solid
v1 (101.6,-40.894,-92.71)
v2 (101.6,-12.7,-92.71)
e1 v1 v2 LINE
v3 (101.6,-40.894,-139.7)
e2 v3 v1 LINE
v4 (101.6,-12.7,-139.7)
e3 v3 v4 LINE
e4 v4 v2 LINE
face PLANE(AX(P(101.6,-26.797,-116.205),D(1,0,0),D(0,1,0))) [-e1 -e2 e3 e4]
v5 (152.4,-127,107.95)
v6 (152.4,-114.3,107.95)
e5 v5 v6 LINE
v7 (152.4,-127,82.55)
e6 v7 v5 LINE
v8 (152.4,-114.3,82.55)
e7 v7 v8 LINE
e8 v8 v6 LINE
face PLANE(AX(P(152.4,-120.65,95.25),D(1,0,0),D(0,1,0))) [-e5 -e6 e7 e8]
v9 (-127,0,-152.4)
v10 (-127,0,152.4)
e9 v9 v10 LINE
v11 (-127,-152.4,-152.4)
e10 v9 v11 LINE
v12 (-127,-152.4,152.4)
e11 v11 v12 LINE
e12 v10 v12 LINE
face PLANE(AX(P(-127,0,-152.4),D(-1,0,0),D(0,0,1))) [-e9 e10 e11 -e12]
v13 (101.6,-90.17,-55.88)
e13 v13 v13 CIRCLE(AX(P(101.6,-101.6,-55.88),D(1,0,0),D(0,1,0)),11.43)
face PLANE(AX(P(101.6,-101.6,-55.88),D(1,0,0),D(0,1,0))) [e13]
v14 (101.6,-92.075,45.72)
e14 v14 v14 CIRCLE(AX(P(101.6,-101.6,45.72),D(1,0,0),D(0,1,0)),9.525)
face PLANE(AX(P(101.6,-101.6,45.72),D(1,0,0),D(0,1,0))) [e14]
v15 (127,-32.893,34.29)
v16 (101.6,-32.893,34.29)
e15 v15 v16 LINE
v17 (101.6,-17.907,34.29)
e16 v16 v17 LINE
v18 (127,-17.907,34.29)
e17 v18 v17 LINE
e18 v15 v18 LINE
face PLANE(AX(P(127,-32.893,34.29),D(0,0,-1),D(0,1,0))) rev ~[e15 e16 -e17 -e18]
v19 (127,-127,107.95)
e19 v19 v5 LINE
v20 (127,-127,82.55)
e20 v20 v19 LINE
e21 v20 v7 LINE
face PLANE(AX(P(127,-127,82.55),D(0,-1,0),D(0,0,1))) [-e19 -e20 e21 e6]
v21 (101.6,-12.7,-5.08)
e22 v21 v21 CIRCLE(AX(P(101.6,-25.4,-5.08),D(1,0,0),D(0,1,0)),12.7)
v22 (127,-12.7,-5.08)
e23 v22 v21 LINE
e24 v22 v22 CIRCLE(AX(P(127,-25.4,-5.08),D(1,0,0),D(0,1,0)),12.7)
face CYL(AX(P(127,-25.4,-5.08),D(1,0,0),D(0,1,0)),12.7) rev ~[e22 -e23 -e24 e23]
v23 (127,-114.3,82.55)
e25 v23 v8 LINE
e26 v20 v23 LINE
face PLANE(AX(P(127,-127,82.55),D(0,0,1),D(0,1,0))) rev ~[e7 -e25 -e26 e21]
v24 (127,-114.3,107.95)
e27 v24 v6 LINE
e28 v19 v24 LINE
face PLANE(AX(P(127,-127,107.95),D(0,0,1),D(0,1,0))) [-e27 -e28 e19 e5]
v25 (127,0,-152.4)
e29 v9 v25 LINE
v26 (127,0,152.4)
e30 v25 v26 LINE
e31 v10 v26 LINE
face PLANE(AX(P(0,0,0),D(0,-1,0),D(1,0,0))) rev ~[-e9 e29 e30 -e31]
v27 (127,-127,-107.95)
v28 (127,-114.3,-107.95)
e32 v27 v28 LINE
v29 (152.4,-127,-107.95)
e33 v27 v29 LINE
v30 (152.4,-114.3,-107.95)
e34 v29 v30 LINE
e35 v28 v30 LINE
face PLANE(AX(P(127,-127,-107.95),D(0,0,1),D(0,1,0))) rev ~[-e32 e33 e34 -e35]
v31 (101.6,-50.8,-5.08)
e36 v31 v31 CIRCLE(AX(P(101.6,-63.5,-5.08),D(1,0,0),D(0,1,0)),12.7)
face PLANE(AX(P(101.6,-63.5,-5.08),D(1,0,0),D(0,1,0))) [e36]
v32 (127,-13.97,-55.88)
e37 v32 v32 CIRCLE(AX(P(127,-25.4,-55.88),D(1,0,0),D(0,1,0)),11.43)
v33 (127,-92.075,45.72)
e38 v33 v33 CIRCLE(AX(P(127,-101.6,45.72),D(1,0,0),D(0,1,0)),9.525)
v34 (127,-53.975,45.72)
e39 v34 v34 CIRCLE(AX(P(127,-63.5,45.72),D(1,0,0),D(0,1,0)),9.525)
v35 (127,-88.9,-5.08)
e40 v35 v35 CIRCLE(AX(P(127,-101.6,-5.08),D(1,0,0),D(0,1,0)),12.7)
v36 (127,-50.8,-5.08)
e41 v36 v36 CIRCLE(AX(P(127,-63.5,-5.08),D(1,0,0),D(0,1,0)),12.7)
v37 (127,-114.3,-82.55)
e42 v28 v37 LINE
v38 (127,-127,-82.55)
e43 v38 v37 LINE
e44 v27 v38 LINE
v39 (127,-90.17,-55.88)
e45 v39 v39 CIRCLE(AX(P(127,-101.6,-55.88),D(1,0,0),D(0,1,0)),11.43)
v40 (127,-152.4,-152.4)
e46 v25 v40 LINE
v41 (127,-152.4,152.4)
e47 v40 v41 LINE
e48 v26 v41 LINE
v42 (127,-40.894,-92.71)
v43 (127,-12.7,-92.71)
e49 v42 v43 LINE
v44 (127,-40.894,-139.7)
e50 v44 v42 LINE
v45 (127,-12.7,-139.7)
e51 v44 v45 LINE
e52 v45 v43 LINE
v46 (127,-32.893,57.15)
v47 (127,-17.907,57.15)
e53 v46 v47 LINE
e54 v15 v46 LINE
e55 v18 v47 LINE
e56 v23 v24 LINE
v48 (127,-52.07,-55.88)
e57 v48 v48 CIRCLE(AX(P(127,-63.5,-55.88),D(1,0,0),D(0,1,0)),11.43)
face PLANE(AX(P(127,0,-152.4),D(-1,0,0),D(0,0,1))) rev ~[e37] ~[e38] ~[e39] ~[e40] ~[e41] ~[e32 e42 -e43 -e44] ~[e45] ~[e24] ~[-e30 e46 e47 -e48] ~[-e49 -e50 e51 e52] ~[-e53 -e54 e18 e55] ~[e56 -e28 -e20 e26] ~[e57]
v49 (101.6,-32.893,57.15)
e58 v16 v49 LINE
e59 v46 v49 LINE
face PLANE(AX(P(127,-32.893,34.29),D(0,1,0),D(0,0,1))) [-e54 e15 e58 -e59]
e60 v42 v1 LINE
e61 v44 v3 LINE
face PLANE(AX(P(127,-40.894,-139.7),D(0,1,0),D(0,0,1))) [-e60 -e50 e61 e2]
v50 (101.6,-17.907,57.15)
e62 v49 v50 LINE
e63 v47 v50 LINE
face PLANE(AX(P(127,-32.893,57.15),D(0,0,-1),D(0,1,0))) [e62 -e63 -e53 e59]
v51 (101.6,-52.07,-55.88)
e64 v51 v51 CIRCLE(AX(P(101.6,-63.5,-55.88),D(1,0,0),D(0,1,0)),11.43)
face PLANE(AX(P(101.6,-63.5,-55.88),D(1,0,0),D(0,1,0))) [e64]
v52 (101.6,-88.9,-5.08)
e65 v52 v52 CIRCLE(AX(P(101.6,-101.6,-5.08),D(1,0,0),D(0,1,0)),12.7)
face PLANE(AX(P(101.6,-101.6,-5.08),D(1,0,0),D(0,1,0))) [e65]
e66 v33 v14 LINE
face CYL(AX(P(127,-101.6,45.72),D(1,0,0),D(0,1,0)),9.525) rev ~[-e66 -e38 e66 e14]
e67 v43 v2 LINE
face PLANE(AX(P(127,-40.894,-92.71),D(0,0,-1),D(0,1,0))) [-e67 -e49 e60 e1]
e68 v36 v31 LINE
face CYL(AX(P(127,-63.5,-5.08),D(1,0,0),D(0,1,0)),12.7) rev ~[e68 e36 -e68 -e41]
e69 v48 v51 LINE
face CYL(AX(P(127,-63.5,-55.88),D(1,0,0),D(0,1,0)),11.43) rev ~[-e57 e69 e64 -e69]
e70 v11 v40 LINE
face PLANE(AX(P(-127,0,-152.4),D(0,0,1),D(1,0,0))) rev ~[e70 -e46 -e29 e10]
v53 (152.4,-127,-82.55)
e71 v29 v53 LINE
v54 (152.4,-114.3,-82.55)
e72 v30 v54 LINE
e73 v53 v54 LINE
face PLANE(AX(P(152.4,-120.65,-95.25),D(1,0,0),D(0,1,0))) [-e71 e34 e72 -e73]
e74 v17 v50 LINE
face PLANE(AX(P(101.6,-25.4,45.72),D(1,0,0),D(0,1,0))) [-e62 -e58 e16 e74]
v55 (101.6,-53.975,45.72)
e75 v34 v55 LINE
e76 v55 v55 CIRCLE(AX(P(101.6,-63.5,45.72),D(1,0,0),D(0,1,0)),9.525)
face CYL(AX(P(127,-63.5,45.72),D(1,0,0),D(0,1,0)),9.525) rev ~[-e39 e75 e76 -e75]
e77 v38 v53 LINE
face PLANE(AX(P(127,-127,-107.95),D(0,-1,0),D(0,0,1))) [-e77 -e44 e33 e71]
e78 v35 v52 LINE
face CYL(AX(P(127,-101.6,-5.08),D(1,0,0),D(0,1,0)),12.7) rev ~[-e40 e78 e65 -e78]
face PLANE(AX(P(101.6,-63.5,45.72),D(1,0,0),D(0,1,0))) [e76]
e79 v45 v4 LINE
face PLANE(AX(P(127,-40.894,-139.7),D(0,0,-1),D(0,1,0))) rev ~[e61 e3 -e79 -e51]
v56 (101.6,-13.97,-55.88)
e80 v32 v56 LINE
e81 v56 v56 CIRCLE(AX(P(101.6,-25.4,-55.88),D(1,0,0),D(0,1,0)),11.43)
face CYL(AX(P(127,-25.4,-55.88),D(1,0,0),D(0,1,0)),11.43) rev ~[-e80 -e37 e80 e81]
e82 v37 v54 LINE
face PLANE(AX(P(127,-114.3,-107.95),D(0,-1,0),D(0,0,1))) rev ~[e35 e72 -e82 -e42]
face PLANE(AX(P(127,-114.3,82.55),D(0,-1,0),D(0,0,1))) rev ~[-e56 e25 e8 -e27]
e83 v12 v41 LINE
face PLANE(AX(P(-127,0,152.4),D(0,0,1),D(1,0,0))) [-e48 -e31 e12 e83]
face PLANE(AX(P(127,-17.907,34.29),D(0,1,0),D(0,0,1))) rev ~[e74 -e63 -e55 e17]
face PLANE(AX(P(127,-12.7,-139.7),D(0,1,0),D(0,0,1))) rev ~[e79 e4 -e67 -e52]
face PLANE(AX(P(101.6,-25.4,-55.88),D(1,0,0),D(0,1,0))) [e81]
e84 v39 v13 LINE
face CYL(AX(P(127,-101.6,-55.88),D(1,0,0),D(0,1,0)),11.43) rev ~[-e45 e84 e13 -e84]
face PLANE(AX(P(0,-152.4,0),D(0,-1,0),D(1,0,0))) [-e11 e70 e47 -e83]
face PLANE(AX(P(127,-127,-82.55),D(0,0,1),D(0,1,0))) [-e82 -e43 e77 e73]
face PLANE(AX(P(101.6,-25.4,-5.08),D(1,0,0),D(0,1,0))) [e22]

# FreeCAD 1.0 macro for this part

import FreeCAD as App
import Part
import Sketcher
from FreeCAD import Vector
Q = App.Units.Quantity


def add_polygon(sketch, points):
    """Adds a closed chain of lines whose ends are joined by coincident constraints."""
    first, n = sketch.GeometryCount, len(points)
    for a, b in zip(points, points[1:] + points[:1]):
        sketch.addGeometry(Part.LineSegment(App.Vector(*a, 0), App.Vector(*b, 0)), False)
    for i in range(n):
        sketch.addConstraint(Sketcher.Constraint("Coincident", first + i, 2, first + (i + 1) % n, 1))

doc = App.newDocument("Part")
params = doc.addObject("Spreadsheet::Sheet", "Params")
for row, (alias, value) in enumerate([
    ("sketch1_width", "10 in"),
    ("sketch1_height", "12 in"),
    ("pad1_length", "6 in"),
    ("sketch2_height", "1 in"),
    ("sketch2_width", "0.5 in"),
    ("pad2_length", "1 in"),
    ("sketch3_diameter", "1 in"),
    ("sketch3_diameter2", "0.9 in"),
    ("sketch3_diameter3", "0.75 in"),
    ("sketch3_height", "0.9 in"),
    ("sketch3_width", "1.11 in"),
    ("pocket1_length", "1 in"),
], start=1):
    params.set(f"A{row}", alias)
    params.set(f"B{row}", "=" + value)
    params.setAlias(f"B{row}", alias)

body = doc.addObject("PartDesign::Body", "Body")

# Sketch on XZ plane
sketch1 = body.newObject("Sketcher::SketchObject", "Sketch")
sketch1.AttachmentSupport = (doc.getObject("XZ_Plane"), [""])
sketch1.MapMode = "FlatFace"
add_polygon(sketch1, [(-127, 152), (-127, -152), (127, -152), (127, 152)])  # lines 0-3
sketch1.addConstraint([
    Sketcher.Constraint("Vertical", 0),
    Sketcher.Constraint("Horizontal", 1),
    Sketcher.Constraint("Vertical", 2),
    Sketcher.Constraint("Horizontal", 3),
    Sketcher.Constraint("Symmetric", 0, 2, 2, 2, -1, 1),
    Sketcher.Constraint("DistanceX", 1, 1, 1, 2, Q("10 in")),
    Sketcher.Constraint("DistanceY", 0, 2, 0, 1, Q("12 in")),
])
sketch1.setExpression("Constraints[9]", "Params.sketch1_width")
sketch1.setExpression("Constraints[10]", "Params.sketch1_height")
pad1 = body.newObject("PartDesign::Pad", "Pad")
pad1.Profile = sketch1
pad1.setExpression("Length", "Params.pad1_length")

# Sketch on YZ plane
sketch2 = body.newObject("Sketcher::SketchObject", "Sketch001")
sketch2.AttachmentSupport = (doc.getObject("YZ_Plane"), [""])
sketch2.MapMode = "FlatFace"
sketch2.AttachmentOffset = App.Placement(Vector(0, 0, 5 * 25.4), App.Rotation())
add_polygon(sketch2, [(-127, 108), (-127, 83), (-114, 83), (-114, 108)])  # lines 0-3
add_polygon(sketch2, [(-127, -83), (-127, -108), (-114, -108), (-114, -83)])  # lines 4-7
sketch2.addConstraint([
    Sketcher.Constraint("Vertical", 0),
    Sketcher.Constraint("Horizontal", 1),
    Sketcher.Constraint("Vertical", 2),
    Sketcher.Constraint("Horizontal", 3),
    Sketcher.Constraint("Vertical", 4),
    Sketcher.Constraint("Horizontal", 5),
    Sketcher.Constraint("Vertical", 6),
    Sketcher.Constraint("Horizontal", 7),
    Sketcher.Constraint("Symmetric", 3, 2, 4, 2, -1),
    Sketcher.Constraint("Symmetric", 1, 2, 6, 2, -1),
    Sketcher.Constraint("DistanceY", 0, 2, 0, 1, Q("1 in")),
    Sketcher.Constraint("DistanceX", 1, 1, 1, 2, Q("0.5 in")),
    Sketcher.Constraint("DistanceX", 0, 2, -1, 1, Q("5 in")),
    Sketcher.Constraint("DistanceY", 4, 2, 0, 2, Q("7.5 in")),
])
sketch2.setExpression("Constraints[18]", "Params.sketch2_height")
sketch2.setExpression("Constraints[19]", "Params.sketch2_width")
pad2 = body.newObject("PartDesign::Pad", "Pad001")
pad2.Profile = sketch2
pad2.setExpression("Length", "Params.pad2_length")

# Sketch on YZ plane
sketch3 = body.newObject("Sketcher::SketchObject", "Sketch002")
sketch3.AttachmentSupport = (doc.getObject("YZ_Plane"), [""])
sketch3.MapMode = "FlatFace"
sketch3.AttachmentOffset = App.Placement(Vector(0, 0, 5 * 25.4), App.Rotation())
sketch3.addGeometry(Part.Circle(Vector(-102, -5, 0), Vector(0, 0, 1), 13), False)  # 0
sketch3.addGeometry(Part.Circle(Vector(-64, -5, 0), Vector(0, 0, 1), 13), False)  # 1
sketch3.addGeometry(Part.Circle(Vector(-25, -5, 0), Vector(0, 0, 1), 13), False)  # 2
sketch3.addGeometry(Part.Circle(Vector(-102, -56, 0), Vector(0, 0, 1), 11), False)  # 3
sketch3.addGeometry(Part.Circle(Vector(-64, -56, 0), Vector(0, 0, 1), 11), False)  # 4
sketch3.addGeometry(Part.Circle(Vector(-25, -56, 0), Vector(0, 0, 1), 11), False)  # 5
add_polygon(sketch3, [(-41, -93), (-41, -140), (-13, -140), (-13, -93)])  # lines 6-9
add_polygon(sketch3, [(-33, 57), (-33, 34), (-18, 34), (-18, 57)])  # lines 10-13
sketch3.addGeometry(Part.Circle(Vector(-102, 46, 0), Vector(0, 0, 1), 10), False)  # 14
sketch3.addGeometry(Part.Circle(Vector(-64, 46, 0), Vector(0, 0, 1), 10), False)  # 15
sketch3.addConstraint([
    Sketcher.Constraint("Vertical", 6),
    Sketcher.Constraint("Horizontal", 7),
    Sketcher.Constraint("Vertical", 8),
    Sketcher.Constraint("Horizontal", 9),
    Sketcher.Constraint("Vertical", 10),
    Sketcher.Constraint("Horizontal", 11),
    Sketcher.Constraint("Vertical", 12),
    Sketcher.Constraint("Horizontal", 13),
    Sketcher.Constraint("Equal", 0, 1),
    Sketcher.Constraint("Equal", 1, 2),
    Sketcher.Constraint("Equal", 3, 4),
    Sketcher.Constraint("Equal", 4, 5),
    Sketcher.Constraint("Equal", 14, 15),
    Sketcher.Constraint("Horizontal", 0, 3, 1, 3),
    Sketcher.Constraint("Horizontal", 1, 3, 2, 3),
    Sketcher.Constraint("Horizontal", 3, 3, 4, 3),
    Sketcher.Constraint("Horizontal", 4, 3, 5, 3),
    Sketcher.Constraint("Horizontal", 14, 3, 15, 3),
    Sketcher.Constraint("Vertical", 0, 3, 3, 3),
    Sketcher.Constraint("Vertical", 1, 3, 4, 3),
    Sketcher.Constraint("Vertical", 2, 3, 5, 3),
    Sketcher.Constraint("Vertical", 3, 3, 14, 3),
    Sketcher.Constraint("Vertical", 4, 3, 15, 3),
    Sketcher.Constraint("Diameter", 0, Q("1 in")),
    Sketcher.Constraint("Diameter", 3, Q("0.9 in")),
    Sketcher.Constraint("Diameter", 14, Q("0.75 in")),
    Sketcher.Constraint("DistanceY", 10, 2, 10, 1, Q("0.9 in")),
    Sketcher.Constraint("DistanceX", 0, 3, -1, 1, Q("4 in")),
    Sketcher.Constraint("DistanceX", 2, 3, -1, 1, Q("1 in")),
    Sketcher.Constraint("DistanceY", 3, 3, 0, 3, Q("2 in")),
    Sketcher.Constraint("DistanceY", 0, 3, 14, 3, Q("2 in")),
    Sketcher.Constraint("DistanceX", 4, 3, 7, 2, Q("2 in")),
    Sketcher.Constraint("DistanceX", 7, 1, 7, 2, Q("1.11 in")),
    Sketcher.Constraint("DistanceX", 11, 1, 11, 2, Q("0.59 in")),
    Sketcher.Constraint("DistanceY", 6, 2, 6, 1, Q("1.85 in")),
    Sketcher.Constraint("DistanceY", 0, 3, -1, 1, Q("0.2 in")),
    Sketcher.Constraint("DistanceX", 1, 3, -1, 1, Q("2.5 in")),
    Sketcher.Constraint("DistanceY", 6, 2, -1, 1, Q("5.5 in")),
    Sketcher.Constraint("DistanceY", -1, 1, 10, 2, Q("1.35 in")),
    Sketcher.Constraint("DistanceX", 10, 2, -1, 1, Q("1.295 in")),
])
sketch3.setExpression("Constraints[31]", "Params.sketch3_diameter")
sketch3.setExpression("Constraints[32]", "Params.sketch3_diameter2")
sketch3.setExpression("Constraints[33]", "Params.sketch3_diameter3")
sketch3.setExpression("Constraints[34]", "Params.sketch3_height")
sketch3.setExpression("Constraints[40]", "Params.sketch3_width")
pocket1 = body.newObject("PartDesign::Pocket", "Pocket")
pocket1.Profile = sketch3
pocket1.setExpression("Length", "Params.pocket1_length")

doc.recompute()
